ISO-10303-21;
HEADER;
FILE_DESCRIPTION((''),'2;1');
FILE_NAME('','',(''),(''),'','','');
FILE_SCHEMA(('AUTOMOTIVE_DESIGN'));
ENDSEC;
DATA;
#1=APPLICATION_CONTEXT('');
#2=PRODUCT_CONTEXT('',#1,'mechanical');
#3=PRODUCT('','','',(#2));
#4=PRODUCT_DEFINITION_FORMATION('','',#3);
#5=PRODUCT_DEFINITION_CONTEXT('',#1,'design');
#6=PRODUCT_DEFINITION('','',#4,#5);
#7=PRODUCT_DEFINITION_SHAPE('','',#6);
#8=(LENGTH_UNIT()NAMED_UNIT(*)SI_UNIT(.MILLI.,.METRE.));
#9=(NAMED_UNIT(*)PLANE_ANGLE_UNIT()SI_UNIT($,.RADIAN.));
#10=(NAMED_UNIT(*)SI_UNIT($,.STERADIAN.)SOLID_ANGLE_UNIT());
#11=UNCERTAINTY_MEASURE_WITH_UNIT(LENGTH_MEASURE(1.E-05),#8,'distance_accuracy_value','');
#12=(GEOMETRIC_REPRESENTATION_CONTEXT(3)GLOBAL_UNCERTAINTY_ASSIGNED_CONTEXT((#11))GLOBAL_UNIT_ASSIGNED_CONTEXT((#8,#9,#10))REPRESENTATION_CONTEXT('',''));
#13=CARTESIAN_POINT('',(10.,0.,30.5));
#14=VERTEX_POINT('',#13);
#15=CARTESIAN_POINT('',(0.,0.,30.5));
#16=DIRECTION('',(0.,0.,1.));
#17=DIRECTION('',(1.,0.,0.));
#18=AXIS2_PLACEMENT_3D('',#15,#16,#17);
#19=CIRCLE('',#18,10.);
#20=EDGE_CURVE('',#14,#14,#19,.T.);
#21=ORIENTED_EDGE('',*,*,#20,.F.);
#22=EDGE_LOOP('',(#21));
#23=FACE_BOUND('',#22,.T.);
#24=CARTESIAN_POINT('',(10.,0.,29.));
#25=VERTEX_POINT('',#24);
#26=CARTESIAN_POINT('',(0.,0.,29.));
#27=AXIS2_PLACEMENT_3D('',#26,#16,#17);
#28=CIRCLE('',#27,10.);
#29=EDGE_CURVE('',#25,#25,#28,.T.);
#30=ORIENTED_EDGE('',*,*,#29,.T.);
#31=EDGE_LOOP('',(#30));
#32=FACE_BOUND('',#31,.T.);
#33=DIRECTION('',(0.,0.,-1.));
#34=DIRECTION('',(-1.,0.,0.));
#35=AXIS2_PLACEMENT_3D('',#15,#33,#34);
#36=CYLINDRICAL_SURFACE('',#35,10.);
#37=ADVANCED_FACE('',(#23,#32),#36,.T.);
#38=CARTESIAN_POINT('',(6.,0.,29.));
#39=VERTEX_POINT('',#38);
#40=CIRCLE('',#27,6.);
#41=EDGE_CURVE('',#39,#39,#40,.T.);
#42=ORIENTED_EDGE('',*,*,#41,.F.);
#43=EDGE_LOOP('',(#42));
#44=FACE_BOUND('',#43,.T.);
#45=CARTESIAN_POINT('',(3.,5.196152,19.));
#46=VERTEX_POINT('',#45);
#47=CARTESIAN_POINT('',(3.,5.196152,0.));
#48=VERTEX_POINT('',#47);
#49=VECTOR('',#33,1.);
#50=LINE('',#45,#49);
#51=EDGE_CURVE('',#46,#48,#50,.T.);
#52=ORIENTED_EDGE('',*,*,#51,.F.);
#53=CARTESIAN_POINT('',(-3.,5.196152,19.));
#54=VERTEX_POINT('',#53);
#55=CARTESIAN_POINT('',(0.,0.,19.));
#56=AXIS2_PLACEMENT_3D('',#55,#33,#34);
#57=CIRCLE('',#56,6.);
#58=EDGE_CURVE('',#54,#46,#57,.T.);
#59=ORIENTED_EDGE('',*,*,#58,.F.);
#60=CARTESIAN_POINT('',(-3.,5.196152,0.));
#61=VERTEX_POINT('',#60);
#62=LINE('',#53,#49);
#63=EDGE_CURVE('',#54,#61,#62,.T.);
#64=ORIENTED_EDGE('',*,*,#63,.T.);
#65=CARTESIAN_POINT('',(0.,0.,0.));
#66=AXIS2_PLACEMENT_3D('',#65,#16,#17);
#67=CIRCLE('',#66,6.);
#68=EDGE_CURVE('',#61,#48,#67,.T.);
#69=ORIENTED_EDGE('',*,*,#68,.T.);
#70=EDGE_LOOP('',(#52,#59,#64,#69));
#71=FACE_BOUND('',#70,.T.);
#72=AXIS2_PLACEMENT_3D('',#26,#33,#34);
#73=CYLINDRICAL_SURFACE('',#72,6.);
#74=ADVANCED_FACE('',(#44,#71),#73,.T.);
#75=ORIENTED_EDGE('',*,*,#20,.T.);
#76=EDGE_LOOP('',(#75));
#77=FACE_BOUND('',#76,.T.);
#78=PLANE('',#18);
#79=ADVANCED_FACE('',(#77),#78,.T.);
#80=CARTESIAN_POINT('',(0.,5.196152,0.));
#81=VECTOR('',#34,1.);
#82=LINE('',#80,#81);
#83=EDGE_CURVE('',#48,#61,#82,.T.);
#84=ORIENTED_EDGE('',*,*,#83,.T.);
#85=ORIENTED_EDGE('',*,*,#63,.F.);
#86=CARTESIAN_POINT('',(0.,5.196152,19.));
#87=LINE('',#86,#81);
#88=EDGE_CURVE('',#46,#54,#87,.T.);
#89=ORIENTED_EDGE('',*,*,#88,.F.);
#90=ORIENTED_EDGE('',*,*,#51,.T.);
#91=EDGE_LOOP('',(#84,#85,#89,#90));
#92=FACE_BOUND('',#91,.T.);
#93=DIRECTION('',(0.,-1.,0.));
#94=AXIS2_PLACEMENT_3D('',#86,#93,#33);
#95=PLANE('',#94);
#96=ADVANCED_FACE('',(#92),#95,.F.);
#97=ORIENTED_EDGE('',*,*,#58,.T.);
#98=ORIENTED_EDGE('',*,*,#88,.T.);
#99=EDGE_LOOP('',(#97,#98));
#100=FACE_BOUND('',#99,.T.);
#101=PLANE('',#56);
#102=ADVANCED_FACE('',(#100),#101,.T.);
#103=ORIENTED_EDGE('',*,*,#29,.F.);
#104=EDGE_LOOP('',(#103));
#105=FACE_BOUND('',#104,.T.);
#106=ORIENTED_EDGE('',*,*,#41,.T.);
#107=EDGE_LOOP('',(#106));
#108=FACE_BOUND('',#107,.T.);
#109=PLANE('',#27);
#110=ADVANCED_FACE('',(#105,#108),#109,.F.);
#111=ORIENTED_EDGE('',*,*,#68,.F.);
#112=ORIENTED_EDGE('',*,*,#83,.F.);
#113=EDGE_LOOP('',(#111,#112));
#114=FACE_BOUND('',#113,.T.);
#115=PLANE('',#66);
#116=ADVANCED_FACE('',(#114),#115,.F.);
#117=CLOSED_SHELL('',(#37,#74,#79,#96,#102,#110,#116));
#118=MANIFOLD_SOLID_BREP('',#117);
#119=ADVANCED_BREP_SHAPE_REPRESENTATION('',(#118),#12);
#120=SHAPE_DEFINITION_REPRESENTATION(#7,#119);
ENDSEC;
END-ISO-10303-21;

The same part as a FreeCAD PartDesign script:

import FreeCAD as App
import Part
import Sketcher
from FreeCAD import Vector
Q = App.Units.Quantity

doc = App.newDocument("Part")
params = doc.addObject("Spreadsheet::Sheet", "Params")
for row, (alias, value) in enumerate([
    ("sketch1_diameter", "12 mm"),
    ("pad1_length", "29 mm"),
    ("pocket1_length", "19 mm"),
    ("sketch3_diameter", "20 mm"),
    ("pad2_length", "1.5 mm"),
], start=1):
    params.set(f"A{row}", alias)
    params.set(f"B{row}", "=" + value)
    params.setAlias(f"B{row}", alias)

body = doc.addObject("PartDesign::Body", "Body")

# Sketch on XY plane
sketch1 = doc.addObject("Sketcher::SketchObject", "Sketch")
body.addObject(sketch1)
sketch1.AttachmentSupport = (doc.XY_Plane, [""])
sketch1.MapMode = "FlatFace"
sketch1.addGeometry(Part.Circle(Vector(0, 0, 0), Vector(0, 0, 1), 6), False)
sketch1.addConstraint([
    Sketcher.Constraint("Coincident", 0, 3, -1, 1),
    Sketcher.Constraint("Diameter", 0, Q("12 mm")),
])
sketch1.setExpression("Constraints[1]", "Params.sketch1_diameter")
pad1 = doc.addObject("PartDesign::Pad", "Pad")
body.addObject(pad1)
pad1.Profile = sketch1
pad1.setExpression("Length", "Params.pad1_length")

# Sketch on XY plane
sketch2 = doc.addObject("Sketcher::SketchObject", "Sketch001")
body.addObject(sketch2)
sketch2.AttachmentSupport = (doc.XY_Plane, [""])
sketch2.MapMode = "FlatFace"
sketch2.addGeometry([
    Part.LineSegment(Vector(42, 5, 0), Vector(-42, 5, 0)),
    Part.LineSegment(Vector(-42, 5, 0), Vector(-42, 83, 0)),
    Part.LineSegment(Vector(-42, 83, 0), Vector(42, 83, 0)),
    Part.LineSegment(Vector(42, 83, 0), Vector(42, 5, 0)),
], False)
sketch2.addConstraint([
    Sketcher.Constraint("Coincident", 0, 2, 1, 1),
    Sketcher.Constraint("Coincident", 1, 2, 2, 1),
    Sketcher.Constraint("Coincident", 2, 2, 3, 1),
    Sketcher.Constraint("Coincident", 3, 2, 0, 1),
    Sketcher.Constraint("Horizontal", 0),
    Sketcher.Constraint("Vertical", 1),
    Sketcher.Constraint("Horizontal", 2),
    Sketcher.Constraint("Vertical", 3),
    Sketcher.Constraint("DistanceX", 0, 2, 0, 1, Q("83.460084 mm")),
    Sketcher.Constraint("DistanceY", 1, 1, 1, 2, Q("77.460084 mm")),
    Sketcher.Constraint("DistanceX", 0, 2, -1, 1, Q("41.730042 mm")),
    Sketcher.Constraint("DistanceY", -1, 1, 0, 2, Q("5.196152 mm")),
])
pocket1 = doc.addObject("PartDesign::Pocket", "Pocket")
body.addObject(pocket1)
pocket1.Profile = sketch2
pocket1.setExpression("Length", "Params.pocket1_length")
pocket1.Reversed = True

# Sketch on XY plane
sketch3 = doc.addObject("Sketcher::SketchObject", "Sketch002")
body.addObject(sketch3)
sketch3.AttachmentSupport = (doc.XY_Plane, [""])
sketch3.MapMode = "FlatFace"
sketch3.AttachmentOffset = App.Placement(Vector(0, 0, 29), App.Rotation())
sketch3.addGeometry(Part.Circle(Vector(0, 0, 0), Vector(0, 0, 1), 10), False)
sketch3.addConstraint([
    Sketcher.Constraint("Coincident", 0, 3, -1, 1),
    Sketcher.Constraint("Diameter", 0, Q("20 mm")),
])
sketch3.setExpression("Constraints[1]", "Params.sketch3_diameter")
pad2 = doc.addObject("PartDesign::Pad", "Pad001")
body.addObject(pad2)
pad2.Profile = sketch3
pad2.setExpression("Length", "Params.pad2_length")

doc.recompute()
